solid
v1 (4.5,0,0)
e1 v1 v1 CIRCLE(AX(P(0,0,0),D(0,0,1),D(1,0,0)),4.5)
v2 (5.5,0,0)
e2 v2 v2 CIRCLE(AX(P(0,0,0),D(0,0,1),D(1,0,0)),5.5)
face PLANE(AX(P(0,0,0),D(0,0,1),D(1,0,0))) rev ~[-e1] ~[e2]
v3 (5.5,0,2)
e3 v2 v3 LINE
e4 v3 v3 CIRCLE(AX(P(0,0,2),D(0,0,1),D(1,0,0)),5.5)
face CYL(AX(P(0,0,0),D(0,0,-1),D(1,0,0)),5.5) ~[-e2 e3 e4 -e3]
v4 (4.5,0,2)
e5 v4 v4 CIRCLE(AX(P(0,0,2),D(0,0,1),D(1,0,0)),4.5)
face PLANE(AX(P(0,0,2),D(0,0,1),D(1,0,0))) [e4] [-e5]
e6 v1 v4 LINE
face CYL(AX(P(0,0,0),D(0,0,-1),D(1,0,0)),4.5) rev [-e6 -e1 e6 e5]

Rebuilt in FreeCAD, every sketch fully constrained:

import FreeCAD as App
import Part
import Sketcher

V = App.Vector
Q = App.Units.Quantity

doc = App.newDocument("Part")
body = doc.addObject("PartDesign::Body", "Body")

# Sketch on XY plane
sketch1 = doc.addObject("Sketcher::SketchObject", "Sketch")
body.addObject(sketch1)
sketch1.AttachmentSupport = (doc.XY_Plane, [""])
sketch1.MapMode = "FlatFace"
sketch1.addGeometry([
    Part.Circle(V(0, 0, 0), V(0, 0, 1), 5.5),
    Part.Circle(V(0, 0, 0), V(0, 0, 1), 4.5),
], False)
sketch1.addConstraint([
    Sketcher.Constraint("Coincident", 0, 3, -1, 1),
    Sketcher.Constraint("Coincident", 1, 3, -1, 1),
    Sketcher.Constraint("Diameter", 0, Q("11 mm")),
    Sketcher.Constraint("Diameter", 1, Q("9 mm")),
])
pad1 = doc.addObject("PartDesign::Pad", "Pad")
body.addObject(pad1)
pad1.Profile = sketch1
pad1.Length = 2

doc.recompute()
